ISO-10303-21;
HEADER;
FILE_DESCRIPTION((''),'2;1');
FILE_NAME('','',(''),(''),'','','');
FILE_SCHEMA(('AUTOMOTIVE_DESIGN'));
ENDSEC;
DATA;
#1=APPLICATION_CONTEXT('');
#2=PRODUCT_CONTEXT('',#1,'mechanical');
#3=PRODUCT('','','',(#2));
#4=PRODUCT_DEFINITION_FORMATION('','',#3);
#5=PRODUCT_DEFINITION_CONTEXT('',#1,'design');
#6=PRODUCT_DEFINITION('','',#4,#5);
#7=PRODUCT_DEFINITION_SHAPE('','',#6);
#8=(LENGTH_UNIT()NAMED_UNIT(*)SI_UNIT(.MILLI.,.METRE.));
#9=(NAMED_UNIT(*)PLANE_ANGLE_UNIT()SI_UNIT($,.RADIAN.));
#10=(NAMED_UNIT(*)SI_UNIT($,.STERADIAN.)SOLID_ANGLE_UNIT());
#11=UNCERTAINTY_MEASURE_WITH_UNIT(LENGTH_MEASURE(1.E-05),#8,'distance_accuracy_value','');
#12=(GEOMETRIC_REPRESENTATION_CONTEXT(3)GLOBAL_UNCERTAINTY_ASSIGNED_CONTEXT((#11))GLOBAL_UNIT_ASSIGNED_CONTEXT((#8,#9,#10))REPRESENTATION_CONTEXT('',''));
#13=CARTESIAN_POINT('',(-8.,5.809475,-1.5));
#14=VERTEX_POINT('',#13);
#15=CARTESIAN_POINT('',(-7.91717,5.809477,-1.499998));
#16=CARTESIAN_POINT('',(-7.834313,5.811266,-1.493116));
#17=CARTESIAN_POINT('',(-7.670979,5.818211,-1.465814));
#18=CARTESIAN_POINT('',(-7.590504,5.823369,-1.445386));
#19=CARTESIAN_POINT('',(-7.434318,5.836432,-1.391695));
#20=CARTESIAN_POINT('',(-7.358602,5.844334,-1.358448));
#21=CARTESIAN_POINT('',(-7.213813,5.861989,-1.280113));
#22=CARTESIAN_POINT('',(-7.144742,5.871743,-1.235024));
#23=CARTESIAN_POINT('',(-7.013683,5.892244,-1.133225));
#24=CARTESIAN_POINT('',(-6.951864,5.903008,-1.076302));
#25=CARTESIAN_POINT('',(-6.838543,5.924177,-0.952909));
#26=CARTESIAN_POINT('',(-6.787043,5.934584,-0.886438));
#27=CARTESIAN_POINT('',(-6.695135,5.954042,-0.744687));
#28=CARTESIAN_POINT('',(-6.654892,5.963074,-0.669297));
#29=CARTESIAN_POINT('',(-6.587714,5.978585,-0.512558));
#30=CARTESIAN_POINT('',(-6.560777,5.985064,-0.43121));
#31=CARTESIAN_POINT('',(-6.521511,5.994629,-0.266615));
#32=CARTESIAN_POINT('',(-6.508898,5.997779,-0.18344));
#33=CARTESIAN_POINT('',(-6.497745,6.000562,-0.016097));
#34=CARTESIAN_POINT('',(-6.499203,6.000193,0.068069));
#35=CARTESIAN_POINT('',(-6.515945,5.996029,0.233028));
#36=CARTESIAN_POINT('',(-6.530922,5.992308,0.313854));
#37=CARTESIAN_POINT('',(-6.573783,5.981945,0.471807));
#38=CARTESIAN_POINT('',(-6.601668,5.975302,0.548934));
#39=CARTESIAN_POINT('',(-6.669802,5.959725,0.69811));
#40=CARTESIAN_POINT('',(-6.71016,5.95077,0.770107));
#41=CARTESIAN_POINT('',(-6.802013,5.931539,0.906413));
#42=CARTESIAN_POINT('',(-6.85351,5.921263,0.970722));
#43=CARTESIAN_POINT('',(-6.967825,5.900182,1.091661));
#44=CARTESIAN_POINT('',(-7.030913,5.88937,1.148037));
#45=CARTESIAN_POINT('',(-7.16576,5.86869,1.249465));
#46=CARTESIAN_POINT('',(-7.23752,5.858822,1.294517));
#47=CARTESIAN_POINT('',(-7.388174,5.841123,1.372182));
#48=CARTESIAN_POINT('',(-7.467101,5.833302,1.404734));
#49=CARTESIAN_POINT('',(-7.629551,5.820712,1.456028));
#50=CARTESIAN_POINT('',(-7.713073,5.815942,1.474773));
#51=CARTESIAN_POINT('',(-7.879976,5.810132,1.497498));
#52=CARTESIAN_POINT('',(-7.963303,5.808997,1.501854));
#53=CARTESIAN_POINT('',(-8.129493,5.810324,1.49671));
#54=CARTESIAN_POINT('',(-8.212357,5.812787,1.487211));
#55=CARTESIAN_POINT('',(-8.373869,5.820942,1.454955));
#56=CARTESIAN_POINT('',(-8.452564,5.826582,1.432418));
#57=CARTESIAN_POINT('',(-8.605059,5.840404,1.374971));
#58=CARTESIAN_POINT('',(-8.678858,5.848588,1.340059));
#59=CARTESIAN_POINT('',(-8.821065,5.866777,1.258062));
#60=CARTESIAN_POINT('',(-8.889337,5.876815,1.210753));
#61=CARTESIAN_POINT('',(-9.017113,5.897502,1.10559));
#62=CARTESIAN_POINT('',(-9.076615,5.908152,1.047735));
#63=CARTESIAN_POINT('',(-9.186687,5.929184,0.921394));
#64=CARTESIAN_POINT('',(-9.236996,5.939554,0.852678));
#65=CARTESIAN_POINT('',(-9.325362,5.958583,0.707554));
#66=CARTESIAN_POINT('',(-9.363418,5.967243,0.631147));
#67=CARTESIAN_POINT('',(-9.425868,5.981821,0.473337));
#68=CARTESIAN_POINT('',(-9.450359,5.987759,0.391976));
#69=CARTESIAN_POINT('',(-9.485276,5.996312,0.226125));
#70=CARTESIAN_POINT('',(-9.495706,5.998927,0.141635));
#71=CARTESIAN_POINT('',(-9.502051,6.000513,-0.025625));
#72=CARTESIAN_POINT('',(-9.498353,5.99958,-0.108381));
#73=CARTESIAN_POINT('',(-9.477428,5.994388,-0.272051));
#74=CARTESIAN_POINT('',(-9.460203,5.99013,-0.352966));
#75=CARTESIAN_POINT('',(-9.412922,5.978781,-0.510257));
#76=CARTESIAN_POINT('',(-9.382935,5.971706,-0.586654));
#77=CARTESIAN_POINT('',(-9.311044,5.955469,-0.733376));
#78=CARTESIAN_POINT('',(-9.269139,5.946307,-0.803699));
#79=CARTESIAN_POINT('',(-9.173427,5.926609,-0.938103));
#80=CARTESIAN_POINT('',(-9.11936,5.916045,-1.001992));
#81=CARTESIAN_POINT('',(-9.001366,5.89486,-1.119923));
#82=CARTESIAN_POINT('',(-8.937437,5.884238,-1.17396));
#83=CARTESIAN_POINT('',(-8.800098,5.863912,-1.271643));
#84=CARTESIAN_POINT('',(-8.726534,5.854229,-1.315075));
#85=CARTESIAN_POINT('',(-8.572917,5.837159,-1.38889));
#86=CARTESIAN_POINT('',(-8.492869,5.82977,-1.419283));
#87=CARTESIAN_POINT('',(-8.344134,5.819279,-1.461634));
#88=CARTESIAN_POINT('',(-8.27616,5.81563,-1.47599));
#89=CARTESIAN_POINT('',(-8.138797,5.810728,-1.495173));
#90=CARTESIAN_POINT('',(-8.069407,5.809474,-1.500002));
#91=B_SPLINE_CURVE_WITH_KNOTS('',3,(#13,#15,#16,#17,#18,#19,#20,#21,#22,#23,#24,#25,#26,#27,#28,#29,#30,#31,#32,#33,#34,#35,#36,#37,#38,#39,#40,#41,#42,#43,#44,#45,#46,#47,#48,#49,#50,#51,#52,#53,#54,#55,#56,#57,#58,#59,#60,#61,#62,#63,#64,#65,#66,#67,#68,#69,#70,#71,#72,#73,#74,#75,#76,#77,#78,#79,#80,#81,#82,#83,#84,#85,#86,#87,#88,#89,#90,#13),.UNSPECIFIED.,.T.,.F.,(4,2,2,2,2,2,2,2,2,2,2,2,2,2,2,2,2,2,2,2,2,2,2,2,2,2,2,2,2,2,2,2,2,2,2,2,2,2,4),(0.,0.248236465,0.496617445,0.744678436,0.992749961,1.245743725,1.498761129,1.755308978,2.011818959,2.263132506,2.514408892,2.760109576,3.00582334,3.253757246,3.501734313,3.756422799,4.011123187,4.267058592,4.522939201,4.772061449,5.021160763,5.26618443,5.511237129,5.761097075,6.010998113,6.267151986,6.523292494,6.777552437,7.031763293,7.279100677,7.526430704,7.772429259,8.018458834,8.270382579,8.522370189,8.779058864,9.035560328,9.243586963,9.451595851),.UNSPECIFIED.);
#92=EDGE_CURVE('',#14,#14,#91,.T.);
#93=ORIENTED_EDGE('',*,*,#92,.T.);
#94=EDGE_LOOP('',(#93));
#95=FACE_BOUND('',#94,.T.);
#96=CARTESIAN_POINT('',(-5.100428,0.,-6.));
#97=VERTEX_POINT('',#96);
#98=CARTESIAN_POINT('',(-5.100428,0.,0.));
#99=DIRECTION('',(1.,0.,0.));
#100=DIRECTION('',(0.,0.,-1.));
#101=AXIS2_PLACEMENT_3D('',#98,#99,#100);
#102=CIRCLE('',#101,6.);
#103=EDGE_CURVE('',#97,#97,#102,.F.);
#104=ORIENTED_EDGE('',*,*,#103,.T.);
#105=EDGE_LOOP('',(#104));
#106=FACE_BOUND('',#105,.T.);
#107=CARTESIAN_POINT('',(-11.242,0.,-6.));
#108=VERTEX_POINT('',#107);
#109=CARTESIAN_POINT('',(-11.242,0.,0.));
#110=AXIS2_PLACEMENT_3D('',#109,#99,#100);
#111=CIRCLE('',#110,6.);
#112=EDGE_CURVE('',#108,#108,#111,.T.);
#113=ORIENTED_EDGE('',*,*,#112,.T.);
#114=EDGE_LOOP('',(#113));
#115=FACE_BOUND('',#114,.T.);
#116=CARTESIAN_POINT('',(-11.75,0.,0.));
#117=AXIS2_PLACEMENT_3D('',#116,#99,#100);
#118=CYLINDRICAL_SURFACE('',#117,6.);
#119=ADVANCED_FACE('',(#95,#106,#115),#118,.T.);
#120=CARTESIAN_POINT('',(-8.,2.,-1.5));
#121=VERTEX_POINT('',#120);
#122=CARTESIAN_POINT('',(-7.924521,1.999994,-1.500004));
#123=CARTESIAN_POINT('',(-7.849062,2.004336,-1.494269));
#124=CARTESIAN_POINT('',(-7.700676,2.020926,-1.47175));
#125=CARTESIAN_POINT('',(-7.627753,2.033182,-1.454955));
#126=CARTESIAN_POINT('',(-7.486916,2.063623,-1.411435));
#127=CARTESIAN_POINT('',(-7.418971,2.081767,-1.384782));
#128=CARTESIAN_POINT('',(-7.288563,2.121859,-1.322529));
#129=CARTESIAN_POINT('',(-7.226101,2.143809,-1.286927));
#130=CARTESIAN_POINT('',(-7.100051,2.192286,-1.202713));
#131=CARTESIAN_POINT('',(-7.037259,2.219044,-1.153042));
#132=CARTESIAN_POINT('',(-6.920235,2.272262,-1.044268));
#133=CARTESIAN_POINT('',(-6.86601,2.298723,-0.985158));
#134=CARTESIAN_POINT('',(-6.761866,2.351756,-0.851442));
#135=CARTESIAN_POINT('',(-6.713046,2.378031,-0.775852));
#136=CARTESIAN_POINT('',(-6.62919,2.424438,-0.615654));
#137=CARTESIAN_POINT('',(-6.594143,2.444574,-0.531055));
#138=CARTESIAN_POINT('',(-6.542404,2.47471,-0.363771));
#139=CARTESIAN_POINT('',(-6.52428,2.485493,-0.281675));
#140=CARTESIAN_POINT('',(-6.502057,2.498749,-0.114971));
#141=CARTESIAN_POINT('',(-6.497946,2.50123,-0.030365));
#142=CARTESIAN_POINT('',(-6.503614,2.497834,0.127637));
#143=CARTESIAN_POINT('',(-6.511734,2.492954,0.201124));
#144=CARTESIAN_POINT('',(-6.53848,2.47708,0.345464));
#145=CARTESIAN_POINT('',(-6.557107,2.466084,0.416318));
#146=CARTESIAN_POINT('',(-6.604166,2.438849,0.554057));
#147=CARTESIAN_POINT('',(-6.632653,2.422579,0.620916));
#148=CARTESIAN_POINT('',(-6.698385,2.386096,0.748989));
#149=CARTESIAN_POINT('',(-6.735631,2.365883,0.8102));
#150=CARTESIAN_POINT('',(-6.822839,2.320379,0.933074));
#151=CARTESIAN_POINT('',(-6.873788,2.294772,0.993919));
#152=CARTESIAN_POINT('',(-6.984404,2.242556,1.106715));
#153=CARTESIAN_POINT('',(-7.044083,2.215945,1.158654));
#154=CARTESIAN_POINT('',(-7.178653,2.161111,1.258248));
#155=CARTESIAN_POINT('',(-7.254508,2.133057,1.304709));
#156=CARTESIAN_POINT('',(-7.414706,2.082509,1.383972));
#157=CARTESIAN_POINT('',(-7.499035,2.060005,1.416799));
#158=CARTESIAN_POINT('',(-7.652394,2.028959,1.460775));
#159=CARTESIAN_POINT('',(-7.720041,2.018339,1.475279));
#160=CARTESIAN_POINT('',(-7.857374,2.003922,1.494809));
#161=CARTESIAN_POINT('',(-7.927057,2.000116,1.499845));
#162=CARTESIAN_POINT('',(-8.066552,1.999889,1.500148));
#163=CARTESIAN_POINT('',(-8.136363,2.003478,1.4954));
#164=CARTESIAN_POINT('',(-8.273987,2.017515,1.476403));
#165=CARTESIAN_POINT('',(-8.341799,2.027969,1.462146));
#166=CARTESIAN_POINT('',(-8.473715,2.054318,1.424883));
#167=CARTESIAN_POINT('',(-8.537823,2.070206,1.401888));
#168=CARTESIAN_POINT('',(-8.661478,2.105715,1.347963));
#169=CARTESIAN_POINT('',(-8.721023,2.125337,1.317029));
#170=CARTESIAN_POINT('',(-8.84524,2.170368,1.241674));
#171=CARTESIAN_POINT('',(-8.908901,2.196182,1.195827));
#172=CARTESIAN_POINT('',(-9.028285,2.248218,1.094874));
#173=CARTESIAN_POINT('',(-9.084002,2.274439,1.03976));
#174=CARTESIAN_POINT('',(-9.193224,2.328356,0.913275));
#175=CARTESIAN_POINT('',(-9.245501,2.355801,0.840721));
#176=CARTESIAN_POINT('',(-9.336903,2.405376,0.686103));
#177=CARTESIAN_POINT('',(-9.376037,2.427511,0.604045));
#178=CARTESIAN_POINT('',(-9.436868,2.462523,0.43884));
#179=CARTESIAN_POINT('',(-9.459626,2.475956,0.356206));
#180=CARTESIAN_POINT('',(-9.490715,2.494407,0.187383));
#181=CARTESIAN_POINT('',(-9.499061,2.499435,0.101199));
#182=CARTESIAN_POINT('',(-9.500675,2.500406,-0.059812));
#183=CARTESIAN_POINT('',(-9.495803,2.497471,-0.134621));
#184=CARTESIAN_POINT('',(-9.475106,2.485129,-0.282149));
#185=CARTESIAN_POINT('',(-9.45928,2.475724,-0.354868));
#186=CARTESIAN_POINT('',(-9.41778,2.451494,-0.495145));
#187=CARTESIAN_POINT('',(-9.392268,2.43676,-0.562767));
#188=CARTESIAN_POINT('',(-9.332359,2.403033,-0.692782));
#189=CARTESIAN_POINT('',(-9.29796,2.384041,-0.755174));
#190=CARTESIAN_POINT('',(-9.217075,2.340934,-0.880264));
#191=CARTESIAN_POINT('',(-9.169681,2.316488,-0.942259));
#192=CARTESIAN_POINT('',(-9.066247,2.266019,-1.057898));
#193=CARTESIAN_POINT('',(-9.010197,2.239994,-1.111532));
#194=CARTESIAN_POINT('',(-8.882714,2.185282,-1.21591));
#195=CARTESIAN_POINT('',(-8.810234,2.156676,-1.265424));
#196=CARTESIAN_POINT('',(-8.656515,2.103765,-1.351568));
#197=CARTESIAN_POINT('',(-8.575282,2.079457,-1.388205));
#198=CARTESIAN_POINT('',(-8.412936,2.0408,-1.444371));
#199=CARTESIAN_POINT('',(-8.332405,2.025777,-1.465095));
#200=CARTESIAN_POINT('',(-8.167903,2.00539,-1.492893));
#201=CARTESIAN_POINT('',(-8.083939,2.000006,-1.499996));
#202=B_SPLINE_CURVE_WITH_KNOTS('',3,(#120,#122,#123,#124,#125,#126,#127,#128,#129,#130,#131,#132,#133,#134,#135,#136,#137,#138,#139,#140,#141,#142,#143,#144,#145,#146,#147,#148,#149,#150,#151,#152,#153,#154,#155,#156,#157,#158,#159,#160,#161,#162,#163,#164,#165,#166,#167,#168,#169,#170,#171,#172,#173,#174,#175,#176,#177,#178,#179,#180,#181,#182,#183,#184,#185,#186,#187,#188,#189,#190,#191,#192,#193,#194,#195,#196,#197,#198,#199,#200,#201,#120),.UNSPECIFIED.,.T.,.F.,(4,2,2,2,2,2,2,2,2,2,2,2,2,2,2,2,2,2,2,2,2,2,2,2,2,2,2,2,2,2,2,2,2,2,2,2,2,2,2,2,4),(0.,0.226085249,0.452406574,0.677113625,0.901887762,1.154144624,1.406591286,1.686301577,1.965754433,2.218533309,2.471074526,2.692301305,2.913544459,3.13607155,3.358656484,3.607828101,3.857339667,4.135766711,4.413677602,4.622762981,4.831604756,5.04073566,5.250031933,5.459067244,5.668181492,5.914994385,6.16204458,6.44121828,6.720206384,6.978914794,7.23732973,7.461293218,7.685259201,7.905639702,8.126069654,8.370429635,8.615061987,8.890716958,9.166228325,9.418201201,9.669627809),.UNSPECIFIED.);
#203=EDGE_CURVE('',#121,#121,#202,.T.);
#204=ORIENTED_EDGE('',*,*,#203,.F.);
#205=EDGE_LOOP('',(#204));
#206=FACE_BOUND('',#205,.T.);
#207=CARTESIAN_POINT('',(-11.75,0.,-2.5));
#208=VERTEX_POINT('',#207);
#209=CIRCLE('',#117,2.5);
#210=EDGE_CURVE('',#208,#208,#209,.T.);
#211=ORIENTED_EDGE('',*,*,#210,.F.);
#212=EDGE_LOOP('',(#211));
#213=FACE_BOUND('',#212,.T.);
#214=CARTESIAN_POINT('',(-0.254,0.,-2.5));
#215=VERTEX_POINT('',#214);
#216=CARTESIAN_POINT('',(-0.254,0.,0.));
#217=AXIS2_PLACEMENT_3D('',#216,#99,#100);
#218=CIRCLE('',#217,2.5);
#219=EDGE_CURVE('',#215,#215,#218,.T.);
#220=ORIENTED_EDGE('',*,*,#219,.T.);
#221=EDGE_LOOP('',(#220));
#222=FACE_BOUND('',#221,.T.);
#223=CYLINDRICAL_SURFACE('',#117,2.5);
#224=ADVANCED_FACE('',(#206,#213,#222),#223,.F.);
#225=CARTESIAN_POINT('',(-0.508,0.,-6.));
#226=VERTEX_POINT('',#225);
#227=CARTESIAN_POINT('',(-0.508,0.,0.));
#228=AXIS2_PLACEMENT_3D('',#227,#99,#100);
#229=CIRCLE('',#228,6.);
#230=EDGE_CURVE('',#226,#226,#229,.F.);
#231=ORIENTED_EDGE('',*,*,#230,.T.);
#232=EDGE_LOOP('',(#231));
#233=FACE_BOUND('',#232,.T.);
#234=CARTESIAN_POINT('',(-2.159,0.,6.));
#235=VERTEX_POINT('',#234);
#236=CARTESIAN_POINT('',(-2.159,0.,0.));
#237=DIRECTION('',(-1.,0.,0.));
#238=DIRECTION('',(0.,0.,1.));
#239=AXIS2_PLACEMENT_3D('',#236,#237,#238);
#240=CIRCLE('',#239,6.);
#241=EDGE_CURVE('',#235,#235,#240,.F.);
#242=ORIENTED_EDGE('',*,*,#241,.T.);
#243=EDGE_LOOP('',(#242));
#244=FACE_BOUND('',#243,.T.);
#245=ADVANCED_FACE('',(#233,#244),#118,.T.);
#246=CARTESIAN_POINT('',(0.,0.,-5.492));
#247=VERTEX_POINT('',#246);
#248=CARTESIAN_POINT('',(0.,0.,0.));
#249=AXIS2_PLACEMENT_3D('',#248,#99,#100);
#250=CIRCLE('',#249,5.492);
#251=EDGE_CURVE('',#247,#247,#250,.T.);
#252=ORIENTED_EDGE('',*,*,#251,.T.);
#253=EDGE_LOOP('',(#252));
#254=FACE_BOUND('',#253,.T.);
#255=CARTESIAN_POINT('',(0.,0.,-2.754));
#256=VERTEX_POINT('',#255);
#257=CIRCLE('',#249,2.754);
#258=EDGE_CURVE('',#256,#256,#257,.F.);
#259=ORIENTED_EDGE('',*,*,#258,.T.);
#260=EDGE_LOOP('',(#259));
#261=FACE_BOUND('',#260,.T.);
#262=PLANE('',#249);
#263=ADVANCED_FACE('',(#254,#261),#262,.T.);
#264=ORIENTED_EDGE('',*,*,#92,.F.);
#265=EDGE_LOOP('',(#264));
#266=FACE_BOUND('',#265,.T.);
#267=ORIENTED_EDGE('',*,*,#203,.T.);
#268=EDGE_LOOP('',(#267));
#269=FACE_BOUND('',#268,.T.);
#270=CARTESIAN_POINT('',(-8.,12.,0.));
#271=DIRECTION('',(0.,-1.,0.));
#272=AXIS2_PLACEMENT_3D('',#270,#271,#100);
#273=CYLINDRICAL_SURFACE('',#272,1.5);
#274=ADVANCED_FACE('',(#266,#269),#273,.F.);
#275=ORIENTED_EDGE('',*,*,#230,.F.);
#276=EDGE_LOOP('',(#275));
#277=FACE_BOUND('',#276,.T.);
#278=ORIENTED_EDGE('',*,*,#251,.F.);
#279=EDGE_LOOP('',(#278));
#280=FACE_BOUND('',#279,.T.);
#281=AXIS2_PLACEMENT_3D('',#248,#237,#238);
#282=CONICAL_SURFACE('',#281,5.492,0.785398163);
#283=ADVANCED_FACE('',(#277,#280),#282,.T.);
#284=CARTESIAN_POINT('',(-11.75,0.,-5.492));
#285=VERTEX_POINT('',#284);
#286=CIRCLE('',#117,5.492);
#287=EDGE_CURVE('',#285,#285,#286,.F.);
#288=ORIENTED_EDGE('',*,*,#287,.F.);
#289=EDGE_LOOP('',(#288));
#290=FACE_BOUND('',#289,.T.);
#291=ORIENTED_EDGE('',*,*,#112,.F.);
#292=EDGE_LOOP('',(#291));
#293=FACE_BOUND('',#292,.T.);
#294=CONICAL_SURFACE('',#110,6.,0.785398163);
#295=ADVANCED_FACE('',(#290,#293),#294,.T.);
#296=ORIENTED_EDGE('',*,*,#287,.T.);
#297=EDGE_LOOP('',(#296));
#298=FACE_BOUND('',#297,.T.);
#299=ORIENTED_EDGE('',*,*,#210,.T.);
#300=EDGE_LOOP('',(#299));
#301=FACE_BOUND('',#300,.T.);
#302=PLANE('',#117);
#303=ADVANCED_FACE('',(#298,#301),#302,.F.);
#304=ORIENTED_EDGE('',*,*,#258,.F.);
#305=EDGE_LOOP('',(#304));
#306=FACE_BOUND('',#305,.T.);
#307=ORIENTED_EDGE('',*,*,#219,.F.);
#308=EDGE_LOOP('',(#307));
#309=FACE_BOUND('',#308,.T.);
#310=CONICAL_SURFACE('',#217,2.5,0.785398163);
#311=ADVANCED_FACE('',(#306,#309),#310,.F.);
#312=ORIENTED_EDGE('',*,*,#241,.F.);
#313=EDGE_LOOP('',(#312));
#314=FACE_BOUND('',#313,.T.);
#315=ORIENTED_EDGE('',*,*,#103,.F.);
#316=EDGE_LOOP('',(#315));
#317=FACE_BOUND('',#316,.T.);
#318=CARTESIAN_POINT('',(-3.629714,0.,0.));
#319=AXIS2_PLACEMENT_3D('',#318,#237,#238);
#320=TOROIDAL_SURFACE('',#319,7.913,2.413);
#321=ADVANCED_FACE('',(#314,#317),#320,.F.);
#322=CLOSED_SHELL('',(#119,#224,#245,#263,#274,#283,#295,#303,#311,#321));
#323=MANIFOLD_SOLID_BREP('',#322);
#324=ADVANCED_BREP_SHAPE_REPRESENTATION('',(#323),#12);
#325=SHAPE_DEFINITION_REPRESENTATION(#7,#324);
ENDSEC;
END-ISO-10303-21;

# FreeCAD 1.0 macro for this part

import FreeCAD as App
import Part
import Sketcher


def edges_at(feature, points):
    """Names of the edges that pass closest to the given points."""
    edges = feature.Shape.Edges
    near = lambda p: min(range(len(edges)), key=lambda i: edges[i].distToShape(Part.Vertex(*p))[0])
    return sorted({f"Edge{near(p) + 1}" for p in points})

doc = App.newDocument("Part")
body = doc.addObject("PartDesign::Body", "Body")

# Sketch on YZ plane
sketch1 = body.newObject("Sketcher::SketchObject", "Sketch")
sketch1.AttachmentSupport = (doc.getObject("YZ_Plane"), [""])
sketch1.MapMode = "FlatFace"
sketch1.addGeometry([
    Part.Circle(App.Vector(0, 0, 0), App.Vector(0, 0, 1), 6),
    Part.Circle(App.Vector(0, 0, 0), App.Vector(0, 0, 1), 2.5),
], False)
sketch1.addConstraint([
    Sketcher.Constraint("Coincident", 0, 3, -1, 1),
    Sketcher.Constraint("Coincident", 1, 3, -1, 1),
    Sketcher.Constraint("Diameter", 0, 12.0),
    Sketcher.Constraint("Diameter", 1, 5.0),
])
pad1 = body.newObject("PartDesign::Pad", "Pad")
pad1.Profile = sketch1
pad1.Length = 11.75
pad1.Reversed = True

# Sketch on XZ plane
sketch2 = body.newObject("Sketcher::SketchObject", "Sketch001")
sketch2.AttachmentSupport = (doc.getObject("XZ_Plane"), [""])
sketch2.MapMode = "FlatFace"
sketch2.addGeometry(Part.Circle(App.Vector(-3.6, -7.9, 0), App.Vector(0, 0, 1), 2.4), False)
sketch2.addConstraint([
    Sketcher.Constraint("Diameter", 0, 4.826),
    Sketcher.Constraint("DistanceY", 0, 3, -1, 1, 7.913),
    Sketcher.Constraint("DistanceX", 0, 3, -1, 1, 3.629714),
])
groove = body.newObject("PartDesign::Groove", "Groove")
groove.Profile = sketch2
groove.ReferenceAxis = (sketch2, ["H_Axis"])
groove.Angle = 360

# Sketch on XZ plane
sketch3 = body.newObject("Sketcher::SketchObject", "Sketch002")
sketch3.AttachmentSupport = (doc.getObject("XZ_Plane"), [""])
sketch3.MapMode = "FlatFace"
sketch3.addGeometry(Part.Circle(App.Vector(-8, 0, 0), App.Vector(0, 0, 1), 1.5), False)
sketch3.addConstraint([
    Sketcher.Constraint("PointOnObject", 0, 3, -1),
    Sketcher.Constraint("Diameter", 0, 3.0),
    Sketcher.Constraint("DistanceX", 0, 3, -1, 1, 8.0),
])
pocket1 = body.newObject("PartDesign::Pocket", "Pocket")
pocket1.Profile = sketch3
pocket1.Length = 12
doc.recompute()

chamfer = body.newObject("PartDesign::Chamfer", "Chamfer")
chamfer.Base = (pocket1, edges_at(pocket1, [(0, 0, 6), (-11.75, 0, 6)]))
chamfer.Size = 0.508
doc.recompute()

chamfer2 = body.newObject("PartDesign::Chamfer", "Chamfer001")
chamfer2.Base = (chamfer, edges_at(chamfer, [(0, 0, 2.5)]))
chamfer2.Size = 0.254

doc.recompute()
